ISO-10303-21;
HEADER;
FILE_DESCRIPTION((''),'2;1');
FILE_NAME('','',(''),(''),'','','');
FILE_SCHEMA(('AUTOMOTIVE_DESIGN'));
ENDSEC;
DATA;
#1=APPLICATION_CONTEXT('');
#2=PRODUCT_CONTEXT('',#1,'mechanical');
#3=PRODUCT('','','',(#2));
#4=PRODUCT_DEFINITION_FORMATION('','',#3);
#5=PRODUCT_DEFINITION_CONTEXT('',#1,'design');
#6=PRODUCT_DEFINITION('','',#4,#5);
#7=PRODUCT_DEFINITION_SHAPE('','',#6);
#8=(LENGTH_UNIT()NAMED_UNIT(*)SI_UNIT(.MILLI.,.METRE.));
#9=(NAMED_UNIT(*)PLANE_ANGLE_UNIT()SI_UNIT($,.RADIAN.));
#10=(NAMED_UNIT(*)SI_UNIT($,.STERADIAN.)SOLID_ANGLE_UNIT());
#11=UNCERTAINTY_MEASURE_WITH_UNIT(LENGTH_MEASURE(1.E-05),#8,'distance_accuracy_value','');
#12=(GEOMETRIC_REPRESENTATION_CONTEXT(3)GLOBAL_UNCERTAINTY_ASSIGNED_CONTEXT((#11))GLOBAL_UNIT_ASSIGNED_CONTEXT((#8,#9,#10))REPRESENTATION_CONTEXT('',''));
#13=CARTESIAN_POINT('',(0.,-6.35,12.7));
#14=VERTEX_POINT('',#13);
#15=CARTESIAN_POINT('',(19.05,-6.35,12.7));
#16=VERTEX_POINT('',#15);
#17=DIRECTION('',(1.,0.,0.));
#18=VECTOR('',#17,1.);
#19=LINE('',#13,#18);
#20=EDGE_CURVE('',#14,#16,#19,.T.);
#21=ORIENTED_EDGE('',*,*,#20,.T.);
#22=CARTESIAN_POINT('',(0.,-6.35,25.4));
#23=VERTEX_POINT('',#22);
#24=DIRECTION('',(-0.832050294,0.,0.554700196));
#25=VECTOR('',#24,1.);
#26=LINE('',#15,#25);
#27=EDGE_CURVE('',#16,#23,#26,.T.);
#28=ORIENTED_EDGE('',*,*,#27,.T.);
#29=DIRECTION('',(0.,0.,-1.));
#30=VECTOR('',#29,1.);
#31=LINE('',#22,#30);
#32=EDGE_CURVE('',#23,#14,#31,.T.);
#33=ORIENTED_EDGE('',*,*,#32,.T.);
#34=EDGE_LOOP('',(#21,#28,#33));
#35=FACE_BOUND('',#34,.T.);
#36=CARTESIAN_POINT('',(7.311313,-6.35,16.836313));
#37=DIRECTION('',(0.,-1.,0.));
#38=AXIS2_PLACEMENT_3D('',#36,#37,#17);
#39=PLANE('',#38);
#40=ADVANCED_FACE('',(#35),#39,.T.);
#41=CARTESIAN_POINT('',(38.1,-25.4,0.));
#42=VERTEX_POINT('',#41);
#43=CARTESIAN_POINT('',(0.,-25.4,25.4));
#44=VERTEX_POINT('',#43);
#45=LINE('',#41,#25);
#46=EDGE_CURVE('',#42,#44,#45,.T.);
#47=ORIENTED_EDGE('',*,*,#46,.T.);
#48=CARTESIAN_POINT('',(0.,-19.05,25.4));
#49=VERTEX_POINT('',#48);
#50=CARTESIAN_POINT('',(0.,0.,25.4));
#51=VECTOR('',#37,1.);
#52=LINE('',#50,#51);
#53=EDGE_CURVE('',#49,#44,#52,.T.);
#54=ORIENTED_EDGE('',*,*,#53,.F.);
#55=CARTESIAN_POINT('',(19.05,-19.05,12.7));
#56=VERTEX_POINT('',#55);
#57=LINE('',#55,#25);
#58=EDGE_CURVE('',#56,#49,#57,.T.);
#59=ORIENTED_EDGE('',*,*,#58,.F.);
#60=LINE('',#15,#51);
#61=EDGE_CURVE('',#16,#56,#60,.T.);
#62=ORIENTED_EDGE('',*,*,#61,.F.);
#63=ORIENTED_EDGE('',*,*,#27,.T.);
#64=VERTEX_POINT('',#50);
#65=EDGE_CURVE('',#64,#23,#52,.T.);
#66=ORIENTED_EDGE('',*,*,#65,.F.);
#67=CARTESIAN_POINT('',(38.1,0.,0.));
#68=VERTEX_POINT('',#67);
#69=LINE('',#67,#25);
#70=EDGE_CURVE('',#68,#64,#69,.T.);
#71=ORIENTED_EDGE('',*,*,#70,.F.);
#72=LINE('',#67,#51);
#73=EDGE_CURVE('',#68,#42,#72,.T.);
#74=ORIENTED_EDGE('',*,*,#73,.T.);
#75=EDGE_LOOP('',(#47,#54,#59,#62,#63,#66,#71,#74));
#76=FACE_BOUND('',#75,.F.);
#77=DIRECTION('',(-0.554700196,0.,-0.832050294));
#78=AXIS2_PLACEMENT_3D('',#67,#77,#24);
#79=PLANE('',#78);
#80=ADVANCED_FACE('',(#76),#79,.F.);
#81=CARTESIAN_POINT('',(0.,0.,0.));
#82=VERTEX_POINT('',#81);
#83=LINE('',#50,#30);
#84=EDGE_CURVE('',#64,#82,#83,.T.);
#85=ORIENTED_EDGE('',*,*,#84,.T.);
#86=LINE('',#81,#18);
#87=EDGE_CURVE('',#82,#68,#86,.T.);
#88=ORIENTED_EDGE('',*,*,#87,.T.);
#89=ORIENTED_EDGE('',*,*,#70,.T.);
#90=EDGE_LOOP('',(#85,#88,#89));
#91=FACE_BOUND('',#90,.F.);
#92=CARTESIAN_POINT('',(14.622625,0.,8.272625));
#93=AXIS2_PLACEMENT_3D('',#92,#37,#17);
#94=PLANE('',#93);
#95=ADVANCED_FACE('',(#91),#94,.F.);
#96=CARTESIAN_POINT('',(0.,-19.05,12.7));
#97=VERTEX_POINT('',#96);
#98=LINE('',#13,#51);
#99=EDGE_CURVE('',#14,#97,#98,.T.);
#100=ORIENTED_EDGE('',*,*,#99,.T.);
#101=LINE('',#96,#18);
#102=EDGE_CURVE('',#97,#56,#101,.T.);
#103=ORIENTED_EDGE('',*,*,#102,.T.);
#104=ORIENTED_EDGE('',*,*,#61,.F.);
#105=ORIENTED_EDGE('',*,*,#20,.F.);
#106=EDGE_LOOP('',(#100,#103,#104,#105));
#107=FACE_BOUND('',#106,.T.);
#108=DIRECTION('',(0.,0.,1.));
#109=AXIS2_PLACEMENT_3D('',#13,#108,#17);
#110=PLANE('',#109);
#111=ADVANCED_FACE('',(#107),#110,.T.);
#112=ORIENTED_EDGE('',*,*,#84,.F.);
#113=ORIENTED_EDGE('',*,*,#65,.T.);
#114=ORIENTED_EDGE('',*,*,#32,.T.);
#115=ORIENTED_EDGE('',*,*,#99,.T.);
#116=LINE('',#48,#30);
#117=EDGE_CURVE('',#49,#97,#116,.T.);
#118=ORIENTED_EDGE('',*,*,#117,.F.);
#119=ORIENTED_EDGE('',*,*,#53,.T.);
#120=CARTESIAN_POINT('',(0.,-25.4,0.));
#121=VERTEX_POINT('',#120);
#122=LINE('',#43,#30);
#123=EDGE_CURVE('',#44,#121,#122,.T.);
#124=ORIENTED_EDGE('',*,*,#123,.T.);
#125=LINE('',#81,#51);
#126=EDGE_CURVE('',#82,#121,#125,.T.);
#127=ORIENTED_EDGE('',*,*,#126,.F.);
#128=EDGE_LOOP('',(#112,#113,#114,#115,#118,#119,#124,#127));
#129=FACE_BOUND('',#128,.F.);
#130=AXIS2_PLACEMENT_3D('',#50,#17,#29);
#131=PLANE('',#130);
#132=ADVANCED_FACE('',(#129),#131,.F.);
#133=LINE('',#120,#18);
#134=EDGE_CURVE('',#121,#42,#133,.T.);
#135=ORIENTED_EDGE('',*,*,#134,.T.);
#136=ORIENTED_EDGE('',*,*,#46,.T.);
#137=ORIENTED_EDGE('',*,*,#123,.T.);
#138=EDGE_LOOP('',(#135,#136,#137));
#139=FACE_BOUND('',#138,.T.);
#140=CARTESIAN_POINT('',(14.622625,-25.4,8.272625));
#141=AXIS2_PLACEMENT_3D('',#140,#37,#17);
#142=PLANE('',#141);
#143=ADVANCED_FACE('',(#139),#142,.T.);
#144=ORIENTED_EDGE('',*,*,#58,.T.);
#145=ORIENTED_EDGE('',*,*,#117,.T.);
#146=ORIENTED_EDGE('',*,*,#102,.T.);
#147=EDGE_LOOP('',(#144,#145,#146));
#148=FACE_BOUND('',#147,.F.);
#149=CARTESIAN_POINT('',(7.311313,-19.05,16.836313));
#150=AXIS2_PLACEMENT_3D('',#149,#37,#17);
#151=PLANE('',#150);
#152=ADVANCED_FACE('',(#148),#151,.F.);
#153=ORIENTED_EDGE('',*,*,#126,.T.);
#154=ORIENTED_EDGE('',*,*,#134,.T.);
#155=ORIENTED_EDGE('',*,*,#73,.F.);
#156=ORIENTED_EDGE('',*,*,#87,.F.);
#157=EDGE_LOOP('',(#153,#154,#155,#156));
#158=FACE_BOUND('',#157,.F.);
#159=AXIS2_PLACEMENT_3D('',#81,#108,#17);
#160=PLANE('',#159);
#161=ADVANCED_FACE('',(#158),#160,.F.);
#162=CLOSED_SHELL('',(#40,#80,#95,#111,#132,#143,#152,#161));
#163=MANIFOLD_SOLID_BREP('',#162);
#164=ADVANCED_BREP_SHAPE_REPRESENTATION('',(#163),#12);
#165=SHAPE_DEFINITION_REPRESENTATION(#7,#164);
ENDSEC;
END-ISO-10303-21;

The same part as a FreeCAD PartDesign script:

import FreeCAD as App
import Part
import Sketcher

V = App.Vector
Q = App.Units.Quantity


def add_polygon(sketch, points):
    """Adds a closed chain of lines whose ends are joined by coincident constraints."""
    first, n = sketch.GeometryCount, len(points)
    for a, b in zip(points, points[1:] + points[:1]):
        sketch.addGeometry(Part.LineSegment(App.Vector(*a, 0), App.Vector(*b, 0)), False)
    for i in range(n):
        sketch.addConstraint(Sketcher.Constraint("Coincident", first + i, 2, first + (i + 1) % n, 1))

doc = App.newDocument("Part")
params = doc.addObject("Spreadsheet::Sheet", "Params")
for row, (alias, value) in enumerate([
    ("sketch1_height", "1 in"),
    ("sketch1_width", "1.5 in"),
    ("pad1_length", "1 in"),
    ("sketch2_height", "0.5 in"),
    ("sketch2_width", "0.75 in"),
    ("pocket1_length", "0.5 in"),
], start=1):
    params.set(f"A{row}", alias)
    params.set(f"B{row}", "=" + value)
    params.setAlias(f"B{row}", alias)

body = doc.addObject("PartDesign::Body", "Body")

sketch1 = doc.addObject("Sketcher::SketchObject", "Sketch")
body.addObject(sketch1)
sketch1.AttachmentSupport = (doc.XZ_Plane, [""])
sketch1.MapMode = "FlatFace"
add_polygon(sketch1, [(0, 25.4), (0, 0), (38.1, 0)])
sketch1.addConstraint([
    Sketcher.Constraint("Vertical", 0),
    Sketcher.Constraint("Horizontal", 1),
    Sketcher.Constraint("Coincident", 0, 2, -1, 1),
    Sketcher.Constraint("DistanceY", 0, 2, 0, 1, Q("1 in")),
    Sketcher.Constraint("DistanceX", 1, 1, 1, 2, Q("1.5 in")),
])
sketch1.setExpression("Constraints[6]", "Params.sketch1_height")
sketch1.setExpression("Constraints[7]", "Params.sketch1_width")
pad1 = doc.addObject("PartDesign::Pad", "Pad")
body.addObject(pad1)
pad1.Profile = sketch1
pad1.setExpression("Length", "Params.pad1_length")

sketch2 = doc.addObject("Sketcher::SketchObject", "Sketch001")
body.addObject(sketch2)
sketch2.AttachmentSupport = (doc.XZ_Plane, [""])
sketch2.MapMode = "FlatFace"
sketch2.AttachmentOffset = App.Placement(V(0, 0, 0.25 * 25.4), App.Rotation())
add_polygon(sketch2, [(19.05, 12.7), (0, 25.4), (0, 12.7)])
sketch2.addConstraint([
    Sketcher.Constraint("Vertical", 1),
    Sketcher.Constraint("Horizontal", 2),
    Sketcher.Constraint("PointOnObject", 0, 2, -2),
    Sketcher.Constraint("DistanceY", 1, 2, 1, 1, Q("0.5 in")),
    Sketcher.Constraint("DistanceY", -1, 1, 0, 2, Q("1 in")),
    Sketcher.Constraint("DistanceX", 2, 1, 2, 2, Q("0.75 in")),
])
sketch2.setExpression("Constraints[6]", "Params.sketch2_height")
sketch2.setExpression("Constraints[8]", "Params.sketch2_width")
pocket1 = doc.addObject("PartDesign::Pocket", "Pocket")
body.addObject(pocket1)
pocket1.Profile = sketch2
pocket1.setExpression("Length", "Params.pocket1_length")
pocket1.Reversed = True

doc.recompute()
